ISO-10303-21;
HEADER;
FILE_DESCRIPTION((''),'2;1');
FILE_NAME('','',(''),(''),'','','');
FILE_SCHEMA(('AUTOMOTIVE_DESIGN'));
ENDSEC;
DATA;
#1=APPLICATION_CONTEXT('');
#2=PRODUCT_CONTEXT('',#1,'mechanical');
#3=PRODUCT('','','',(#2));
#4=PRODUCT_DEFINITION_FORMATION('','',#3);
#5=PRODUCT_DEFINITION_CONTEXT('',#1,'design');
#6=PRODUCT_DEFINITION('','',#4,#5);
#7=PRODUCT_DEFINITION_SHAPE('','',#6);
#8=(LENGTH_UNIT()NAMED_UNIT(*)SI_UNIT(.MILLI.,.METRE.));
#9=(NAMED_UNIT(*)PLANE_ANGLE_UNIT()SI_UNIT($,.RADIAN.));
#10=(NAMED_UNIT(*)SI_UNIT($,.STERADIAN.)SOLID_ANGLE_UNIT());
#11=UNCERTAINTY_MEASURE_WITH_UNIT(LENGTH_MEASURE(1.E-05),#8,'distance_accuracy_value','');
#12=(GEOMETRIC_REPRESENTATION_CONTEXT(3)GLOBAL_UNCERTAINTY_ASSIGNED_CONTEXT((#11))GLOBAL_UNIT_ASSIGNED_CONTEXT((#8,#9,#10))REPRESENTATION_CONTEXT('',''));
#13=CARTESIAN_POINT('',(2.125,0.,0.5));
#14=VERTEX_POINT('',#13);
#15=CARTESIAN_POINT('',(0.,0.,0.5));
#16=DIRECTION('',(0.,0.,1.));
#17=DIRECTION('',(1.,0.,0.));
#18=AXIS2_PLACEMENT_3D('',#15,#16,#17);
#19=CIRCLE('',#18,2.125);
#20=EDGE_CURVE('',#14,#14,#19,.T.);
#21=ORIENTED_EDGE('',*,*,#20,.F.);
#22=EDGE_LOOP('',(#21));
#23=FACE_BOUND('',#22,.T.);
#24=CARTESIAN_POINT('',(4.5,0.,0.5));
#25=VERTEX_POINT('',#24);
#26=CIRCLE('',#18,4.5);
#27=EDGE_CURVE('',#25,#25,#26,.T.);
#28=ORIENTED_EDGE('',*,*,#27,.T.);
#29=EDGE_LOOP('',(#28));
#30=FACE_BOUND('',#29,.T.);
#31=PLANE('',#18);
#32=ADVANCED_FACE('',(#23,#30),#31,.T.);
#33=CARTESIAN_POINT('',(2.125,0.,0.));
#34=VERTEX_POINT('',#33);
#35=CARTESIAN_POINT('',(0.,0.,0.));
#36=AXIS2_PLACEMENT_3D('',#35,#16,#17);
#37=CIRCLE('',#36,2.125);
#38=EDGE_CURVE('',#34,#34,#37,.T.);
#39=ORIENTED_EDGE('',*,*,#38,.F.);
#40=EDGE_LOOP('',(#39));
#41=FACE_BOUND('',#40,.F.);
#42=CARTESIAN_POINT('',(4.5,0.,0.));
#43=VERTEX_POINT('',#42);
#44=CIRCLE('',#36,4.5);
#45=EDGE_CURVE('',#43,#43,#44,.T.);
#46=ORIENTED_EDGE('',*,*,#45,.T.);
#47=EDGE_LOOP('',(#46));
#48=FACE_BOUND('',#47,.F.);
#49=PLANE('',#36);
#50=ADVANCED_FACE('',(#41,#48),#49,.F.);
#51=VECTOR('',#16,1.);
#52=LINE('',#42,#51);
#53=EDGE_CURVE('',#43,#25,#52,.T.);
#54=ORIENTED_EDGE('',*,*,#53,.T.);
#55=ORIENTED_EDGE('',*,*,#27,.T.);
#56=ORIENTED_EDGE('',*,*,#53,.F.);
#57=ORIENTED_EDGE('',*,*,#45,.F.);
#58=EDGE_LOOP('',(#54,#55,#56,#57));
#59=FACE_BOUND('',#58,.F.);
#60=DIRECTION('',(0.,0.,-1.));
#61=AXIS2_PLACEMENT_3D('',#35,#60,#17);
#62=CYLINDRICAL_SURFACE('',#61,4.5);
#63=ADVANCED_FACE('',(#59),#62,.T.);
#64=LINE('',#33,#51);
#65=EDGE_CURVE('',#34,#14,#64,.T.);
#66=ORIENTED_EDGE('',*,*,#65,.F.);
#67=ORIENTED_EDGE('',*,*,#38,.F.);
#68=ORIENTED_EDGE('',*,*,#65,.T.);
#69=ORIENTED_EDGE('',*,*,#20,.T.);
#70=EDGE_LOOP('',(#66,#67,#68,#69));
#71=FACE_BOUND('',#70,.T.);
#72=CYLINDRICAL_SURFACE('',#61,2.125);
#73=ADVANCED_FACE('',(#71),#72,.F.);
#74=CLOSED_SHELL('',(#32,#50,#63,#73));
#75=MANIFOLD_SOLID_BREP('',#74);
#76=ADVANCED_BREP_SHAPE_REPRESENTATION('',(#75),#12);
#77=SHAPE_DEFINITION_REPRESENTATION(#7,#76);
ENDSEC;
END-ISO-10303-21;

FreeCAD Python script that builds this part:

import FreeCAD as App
import Part
import Sketcher
Q = App.Units.Quantity

doc = App.newDocument("Part")
body = doc.addObject("PartDesign::Body", "Body")

# Sketch on XY plane
sketch1 = doc.addObject("Sketcher::SketchObject", "Sketch")
body.addObject(sketch1)
sketch1.AttachmentSupport = (doc.XY_Plane, [""])
sketch1.MapMode = "FlatFace"
sketch1.addGeometry(Part.Circle(App.Vector(0, 0, 0), App.Vector(0, 0, 1), 4.5), False)
sketch1.addGeometry(Part.Circle(App.Vector(0, 0, 0), App.Vector(0, 0, 1), 2.1), False)
sketch1.addConstraint(Sketcher.Constraint("Coincident", 0, 3, -1, 1))
sketch1.addConstraint(Sketcher.Constraint("Coincident", 1, 3, -1, 1))
sketch1.addConstraint(Sketcher.Constraint("Diameter", 0, Q("9 mm")))
sketch1.addConstraint(Sketcher.Constraint("Diameter", 1, Q("4.25 mm")))
pad1 = doc.addObject("PartDesign::Pad", "Pad")
body.addObject(pad1)
pad1.Profile = sketch1
pad1.Length = 0.5

doc.recompute()
